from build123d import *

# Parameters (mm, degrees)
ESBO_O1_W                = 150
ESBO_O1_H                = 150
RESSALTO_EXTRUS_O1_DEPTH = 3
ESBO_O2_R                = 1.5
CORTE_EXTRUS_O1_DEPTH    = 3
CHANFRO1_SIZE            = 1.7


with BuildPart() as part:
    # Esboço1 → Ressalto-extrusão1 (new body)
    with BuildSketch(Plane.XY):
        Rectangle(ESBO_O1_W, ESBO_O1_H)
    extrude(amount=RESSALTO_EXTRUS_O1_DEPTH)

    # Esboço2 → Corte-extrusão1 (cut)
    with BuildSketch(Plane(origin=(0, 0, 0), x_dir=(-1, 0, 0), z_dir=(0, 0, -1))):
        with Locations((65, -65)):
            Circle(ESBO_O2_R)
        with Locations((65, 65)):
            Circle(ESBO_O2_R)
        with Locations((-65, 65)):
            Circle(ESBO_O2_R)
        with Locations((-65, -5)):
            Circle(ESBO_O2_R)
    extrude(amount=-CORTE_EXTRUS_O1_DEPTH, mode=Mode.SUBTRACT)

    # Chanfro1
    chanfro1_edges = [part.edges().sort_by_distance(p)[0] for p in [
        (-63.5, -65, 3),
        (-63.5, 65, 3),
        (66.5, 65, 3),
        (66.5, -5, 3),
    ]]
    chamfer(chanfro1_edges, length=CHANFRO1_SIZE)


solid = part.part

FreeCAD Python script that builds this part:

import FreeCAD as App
import Part
import Sketcher
from FreeCAD import Vector


def edges_at(feature, points):
    """Names of the edges that pass closest to the given points."""
    edges = feature.Shape.Edges
    near = lambda p: min(range(len(edges)), key=lambda i: edges[i].distToShape(Part.Vertex(*p))[0])
    return sorted({f"Edge{near(p) + 1}" for p in points})

doc = App.newDocument("Part")
body = doc.addObject("PartDesign::Body", "Body")

sketch1 = doc.addObject("Sketcher::SketchObject", "Sketch")
body.addObject(sketch1)
sketch1.AttachmentSupport = (doc.XY_Plane, [""])
sketch1.MapMode = "FlatFace"
sketch1.addGeometry([
    Part.LineSegment(Vector(-75, 75, 0), Vector(-75, -75, 0)),
    Part.LineSegment(Vector(-75, -75, 0), Vector(75, -75, 0)),
    Part.LineSegment(Vector(75, -75, 0), Vector(75, 75, 0)),
    Part.LineSegment(Vector(75, 75, 0), Vector(-75, 75, 0)),
], False)
sketch1.addConstraint([
    Sketcher.Constraint("Coincident", 0, 2, 1, 1),
    Sketcher.Constraint("Coincident", 1, 2, 2, 1),
    Sketcher.Constraint("Coincident", 2, 2, 3, 1),
    Sketcher.Constraint("Coincident", 3, 2, 0, 1),
    Sketcher.Constraint("Vertical", 0),
    Sketcher.Constraint("Horizontal", 1),
    Sketcher.Constraint("Vertical", 2),
    Sketcher.Constraint("Horizontal", 3),
    Sketcher.Constraint("Symmetric", 0, 2, 2, 2, -1, 1),
    Sketcher.Constraint("Equal", 3, 0),
    Sketcher.Constraint("DistanceX", 1, 1, 1, 2, 150.0),
])
pad1 = doc.addObject("PartDesign::Pad", "Pad")
body.addObject(pad1)
pad1.Profile = sketch1
pad1.Length = 3

sketch2 = doc.addObject("Sketcher::SketchObject", "Sketch001")
body.addObject(sketch2)
sketch2.AttachmentSupport = (doc.XY_Plane, [""])
sketch2.MapMode = "FlatFace"
sketch2.addGeometry([
    Part.Circle(Vector(-65, -65, 0), Vector(0, 0, 1), 1.5),
    Part.Circle(Vector(-65, 65, 0), Vector(0, 0, 1), 1.5),
    Part.Circle(Vector(65, 65, 0), Vector(0, 0, 1), 1.5),
    Part.Circle(Vector(65, -5, 0), Vector(0, 0, 1), 1.5),
], False)
sketch2.addConstraint([
    Sketcher.Constraint("Equal", 0, 1),
    Sketcher.Constraint("Equal", 1, 2),
    Sketcher.Constraint("Equal", 2, 3),
    Sketcher.Constraint("Symmetric", 0, 3, 2, 3, -1, 1),
    Sketcher.Constraint("Symmetric", 1, 3, 2, 3, -2),
    Sketcher.Constraint("Vertical", 2, 3, 3, 3),
    Sketcher.Constraint("Diameter", 0, 3.0),
    Sketcher.Constraint("DistanceX", 0, 3, -1, 1, 65.0),
    Sketcher.Constraint("DistanceY", 0, 3, -1, 1, 65.0),
    Sketcher.Constraint("DistanceY", 3, 3, -1, 1, 5.0),
])
pocket1 = doc.addObject("PartDesign::Pocket", "Pocket")
body.addObject(pocket1)
pocket1.Profile = sketch2
pocket1.Length = 3
pocket1.Reversed = True
doc.recompute()

chamfer = doc.addObject("PartDesign::Chamfer", "Chamfer")
body.addObject(chamfer)
chamfer.Base = (pocket1, edges_at(pocket1, [
    (-63.5, -65, 3),
    (-63.5, 65, 3),
    (66.5, 65, 3),
    (66.5, -5, 3),
]))
chamfer.Size = 1.7

doc.recompute()
